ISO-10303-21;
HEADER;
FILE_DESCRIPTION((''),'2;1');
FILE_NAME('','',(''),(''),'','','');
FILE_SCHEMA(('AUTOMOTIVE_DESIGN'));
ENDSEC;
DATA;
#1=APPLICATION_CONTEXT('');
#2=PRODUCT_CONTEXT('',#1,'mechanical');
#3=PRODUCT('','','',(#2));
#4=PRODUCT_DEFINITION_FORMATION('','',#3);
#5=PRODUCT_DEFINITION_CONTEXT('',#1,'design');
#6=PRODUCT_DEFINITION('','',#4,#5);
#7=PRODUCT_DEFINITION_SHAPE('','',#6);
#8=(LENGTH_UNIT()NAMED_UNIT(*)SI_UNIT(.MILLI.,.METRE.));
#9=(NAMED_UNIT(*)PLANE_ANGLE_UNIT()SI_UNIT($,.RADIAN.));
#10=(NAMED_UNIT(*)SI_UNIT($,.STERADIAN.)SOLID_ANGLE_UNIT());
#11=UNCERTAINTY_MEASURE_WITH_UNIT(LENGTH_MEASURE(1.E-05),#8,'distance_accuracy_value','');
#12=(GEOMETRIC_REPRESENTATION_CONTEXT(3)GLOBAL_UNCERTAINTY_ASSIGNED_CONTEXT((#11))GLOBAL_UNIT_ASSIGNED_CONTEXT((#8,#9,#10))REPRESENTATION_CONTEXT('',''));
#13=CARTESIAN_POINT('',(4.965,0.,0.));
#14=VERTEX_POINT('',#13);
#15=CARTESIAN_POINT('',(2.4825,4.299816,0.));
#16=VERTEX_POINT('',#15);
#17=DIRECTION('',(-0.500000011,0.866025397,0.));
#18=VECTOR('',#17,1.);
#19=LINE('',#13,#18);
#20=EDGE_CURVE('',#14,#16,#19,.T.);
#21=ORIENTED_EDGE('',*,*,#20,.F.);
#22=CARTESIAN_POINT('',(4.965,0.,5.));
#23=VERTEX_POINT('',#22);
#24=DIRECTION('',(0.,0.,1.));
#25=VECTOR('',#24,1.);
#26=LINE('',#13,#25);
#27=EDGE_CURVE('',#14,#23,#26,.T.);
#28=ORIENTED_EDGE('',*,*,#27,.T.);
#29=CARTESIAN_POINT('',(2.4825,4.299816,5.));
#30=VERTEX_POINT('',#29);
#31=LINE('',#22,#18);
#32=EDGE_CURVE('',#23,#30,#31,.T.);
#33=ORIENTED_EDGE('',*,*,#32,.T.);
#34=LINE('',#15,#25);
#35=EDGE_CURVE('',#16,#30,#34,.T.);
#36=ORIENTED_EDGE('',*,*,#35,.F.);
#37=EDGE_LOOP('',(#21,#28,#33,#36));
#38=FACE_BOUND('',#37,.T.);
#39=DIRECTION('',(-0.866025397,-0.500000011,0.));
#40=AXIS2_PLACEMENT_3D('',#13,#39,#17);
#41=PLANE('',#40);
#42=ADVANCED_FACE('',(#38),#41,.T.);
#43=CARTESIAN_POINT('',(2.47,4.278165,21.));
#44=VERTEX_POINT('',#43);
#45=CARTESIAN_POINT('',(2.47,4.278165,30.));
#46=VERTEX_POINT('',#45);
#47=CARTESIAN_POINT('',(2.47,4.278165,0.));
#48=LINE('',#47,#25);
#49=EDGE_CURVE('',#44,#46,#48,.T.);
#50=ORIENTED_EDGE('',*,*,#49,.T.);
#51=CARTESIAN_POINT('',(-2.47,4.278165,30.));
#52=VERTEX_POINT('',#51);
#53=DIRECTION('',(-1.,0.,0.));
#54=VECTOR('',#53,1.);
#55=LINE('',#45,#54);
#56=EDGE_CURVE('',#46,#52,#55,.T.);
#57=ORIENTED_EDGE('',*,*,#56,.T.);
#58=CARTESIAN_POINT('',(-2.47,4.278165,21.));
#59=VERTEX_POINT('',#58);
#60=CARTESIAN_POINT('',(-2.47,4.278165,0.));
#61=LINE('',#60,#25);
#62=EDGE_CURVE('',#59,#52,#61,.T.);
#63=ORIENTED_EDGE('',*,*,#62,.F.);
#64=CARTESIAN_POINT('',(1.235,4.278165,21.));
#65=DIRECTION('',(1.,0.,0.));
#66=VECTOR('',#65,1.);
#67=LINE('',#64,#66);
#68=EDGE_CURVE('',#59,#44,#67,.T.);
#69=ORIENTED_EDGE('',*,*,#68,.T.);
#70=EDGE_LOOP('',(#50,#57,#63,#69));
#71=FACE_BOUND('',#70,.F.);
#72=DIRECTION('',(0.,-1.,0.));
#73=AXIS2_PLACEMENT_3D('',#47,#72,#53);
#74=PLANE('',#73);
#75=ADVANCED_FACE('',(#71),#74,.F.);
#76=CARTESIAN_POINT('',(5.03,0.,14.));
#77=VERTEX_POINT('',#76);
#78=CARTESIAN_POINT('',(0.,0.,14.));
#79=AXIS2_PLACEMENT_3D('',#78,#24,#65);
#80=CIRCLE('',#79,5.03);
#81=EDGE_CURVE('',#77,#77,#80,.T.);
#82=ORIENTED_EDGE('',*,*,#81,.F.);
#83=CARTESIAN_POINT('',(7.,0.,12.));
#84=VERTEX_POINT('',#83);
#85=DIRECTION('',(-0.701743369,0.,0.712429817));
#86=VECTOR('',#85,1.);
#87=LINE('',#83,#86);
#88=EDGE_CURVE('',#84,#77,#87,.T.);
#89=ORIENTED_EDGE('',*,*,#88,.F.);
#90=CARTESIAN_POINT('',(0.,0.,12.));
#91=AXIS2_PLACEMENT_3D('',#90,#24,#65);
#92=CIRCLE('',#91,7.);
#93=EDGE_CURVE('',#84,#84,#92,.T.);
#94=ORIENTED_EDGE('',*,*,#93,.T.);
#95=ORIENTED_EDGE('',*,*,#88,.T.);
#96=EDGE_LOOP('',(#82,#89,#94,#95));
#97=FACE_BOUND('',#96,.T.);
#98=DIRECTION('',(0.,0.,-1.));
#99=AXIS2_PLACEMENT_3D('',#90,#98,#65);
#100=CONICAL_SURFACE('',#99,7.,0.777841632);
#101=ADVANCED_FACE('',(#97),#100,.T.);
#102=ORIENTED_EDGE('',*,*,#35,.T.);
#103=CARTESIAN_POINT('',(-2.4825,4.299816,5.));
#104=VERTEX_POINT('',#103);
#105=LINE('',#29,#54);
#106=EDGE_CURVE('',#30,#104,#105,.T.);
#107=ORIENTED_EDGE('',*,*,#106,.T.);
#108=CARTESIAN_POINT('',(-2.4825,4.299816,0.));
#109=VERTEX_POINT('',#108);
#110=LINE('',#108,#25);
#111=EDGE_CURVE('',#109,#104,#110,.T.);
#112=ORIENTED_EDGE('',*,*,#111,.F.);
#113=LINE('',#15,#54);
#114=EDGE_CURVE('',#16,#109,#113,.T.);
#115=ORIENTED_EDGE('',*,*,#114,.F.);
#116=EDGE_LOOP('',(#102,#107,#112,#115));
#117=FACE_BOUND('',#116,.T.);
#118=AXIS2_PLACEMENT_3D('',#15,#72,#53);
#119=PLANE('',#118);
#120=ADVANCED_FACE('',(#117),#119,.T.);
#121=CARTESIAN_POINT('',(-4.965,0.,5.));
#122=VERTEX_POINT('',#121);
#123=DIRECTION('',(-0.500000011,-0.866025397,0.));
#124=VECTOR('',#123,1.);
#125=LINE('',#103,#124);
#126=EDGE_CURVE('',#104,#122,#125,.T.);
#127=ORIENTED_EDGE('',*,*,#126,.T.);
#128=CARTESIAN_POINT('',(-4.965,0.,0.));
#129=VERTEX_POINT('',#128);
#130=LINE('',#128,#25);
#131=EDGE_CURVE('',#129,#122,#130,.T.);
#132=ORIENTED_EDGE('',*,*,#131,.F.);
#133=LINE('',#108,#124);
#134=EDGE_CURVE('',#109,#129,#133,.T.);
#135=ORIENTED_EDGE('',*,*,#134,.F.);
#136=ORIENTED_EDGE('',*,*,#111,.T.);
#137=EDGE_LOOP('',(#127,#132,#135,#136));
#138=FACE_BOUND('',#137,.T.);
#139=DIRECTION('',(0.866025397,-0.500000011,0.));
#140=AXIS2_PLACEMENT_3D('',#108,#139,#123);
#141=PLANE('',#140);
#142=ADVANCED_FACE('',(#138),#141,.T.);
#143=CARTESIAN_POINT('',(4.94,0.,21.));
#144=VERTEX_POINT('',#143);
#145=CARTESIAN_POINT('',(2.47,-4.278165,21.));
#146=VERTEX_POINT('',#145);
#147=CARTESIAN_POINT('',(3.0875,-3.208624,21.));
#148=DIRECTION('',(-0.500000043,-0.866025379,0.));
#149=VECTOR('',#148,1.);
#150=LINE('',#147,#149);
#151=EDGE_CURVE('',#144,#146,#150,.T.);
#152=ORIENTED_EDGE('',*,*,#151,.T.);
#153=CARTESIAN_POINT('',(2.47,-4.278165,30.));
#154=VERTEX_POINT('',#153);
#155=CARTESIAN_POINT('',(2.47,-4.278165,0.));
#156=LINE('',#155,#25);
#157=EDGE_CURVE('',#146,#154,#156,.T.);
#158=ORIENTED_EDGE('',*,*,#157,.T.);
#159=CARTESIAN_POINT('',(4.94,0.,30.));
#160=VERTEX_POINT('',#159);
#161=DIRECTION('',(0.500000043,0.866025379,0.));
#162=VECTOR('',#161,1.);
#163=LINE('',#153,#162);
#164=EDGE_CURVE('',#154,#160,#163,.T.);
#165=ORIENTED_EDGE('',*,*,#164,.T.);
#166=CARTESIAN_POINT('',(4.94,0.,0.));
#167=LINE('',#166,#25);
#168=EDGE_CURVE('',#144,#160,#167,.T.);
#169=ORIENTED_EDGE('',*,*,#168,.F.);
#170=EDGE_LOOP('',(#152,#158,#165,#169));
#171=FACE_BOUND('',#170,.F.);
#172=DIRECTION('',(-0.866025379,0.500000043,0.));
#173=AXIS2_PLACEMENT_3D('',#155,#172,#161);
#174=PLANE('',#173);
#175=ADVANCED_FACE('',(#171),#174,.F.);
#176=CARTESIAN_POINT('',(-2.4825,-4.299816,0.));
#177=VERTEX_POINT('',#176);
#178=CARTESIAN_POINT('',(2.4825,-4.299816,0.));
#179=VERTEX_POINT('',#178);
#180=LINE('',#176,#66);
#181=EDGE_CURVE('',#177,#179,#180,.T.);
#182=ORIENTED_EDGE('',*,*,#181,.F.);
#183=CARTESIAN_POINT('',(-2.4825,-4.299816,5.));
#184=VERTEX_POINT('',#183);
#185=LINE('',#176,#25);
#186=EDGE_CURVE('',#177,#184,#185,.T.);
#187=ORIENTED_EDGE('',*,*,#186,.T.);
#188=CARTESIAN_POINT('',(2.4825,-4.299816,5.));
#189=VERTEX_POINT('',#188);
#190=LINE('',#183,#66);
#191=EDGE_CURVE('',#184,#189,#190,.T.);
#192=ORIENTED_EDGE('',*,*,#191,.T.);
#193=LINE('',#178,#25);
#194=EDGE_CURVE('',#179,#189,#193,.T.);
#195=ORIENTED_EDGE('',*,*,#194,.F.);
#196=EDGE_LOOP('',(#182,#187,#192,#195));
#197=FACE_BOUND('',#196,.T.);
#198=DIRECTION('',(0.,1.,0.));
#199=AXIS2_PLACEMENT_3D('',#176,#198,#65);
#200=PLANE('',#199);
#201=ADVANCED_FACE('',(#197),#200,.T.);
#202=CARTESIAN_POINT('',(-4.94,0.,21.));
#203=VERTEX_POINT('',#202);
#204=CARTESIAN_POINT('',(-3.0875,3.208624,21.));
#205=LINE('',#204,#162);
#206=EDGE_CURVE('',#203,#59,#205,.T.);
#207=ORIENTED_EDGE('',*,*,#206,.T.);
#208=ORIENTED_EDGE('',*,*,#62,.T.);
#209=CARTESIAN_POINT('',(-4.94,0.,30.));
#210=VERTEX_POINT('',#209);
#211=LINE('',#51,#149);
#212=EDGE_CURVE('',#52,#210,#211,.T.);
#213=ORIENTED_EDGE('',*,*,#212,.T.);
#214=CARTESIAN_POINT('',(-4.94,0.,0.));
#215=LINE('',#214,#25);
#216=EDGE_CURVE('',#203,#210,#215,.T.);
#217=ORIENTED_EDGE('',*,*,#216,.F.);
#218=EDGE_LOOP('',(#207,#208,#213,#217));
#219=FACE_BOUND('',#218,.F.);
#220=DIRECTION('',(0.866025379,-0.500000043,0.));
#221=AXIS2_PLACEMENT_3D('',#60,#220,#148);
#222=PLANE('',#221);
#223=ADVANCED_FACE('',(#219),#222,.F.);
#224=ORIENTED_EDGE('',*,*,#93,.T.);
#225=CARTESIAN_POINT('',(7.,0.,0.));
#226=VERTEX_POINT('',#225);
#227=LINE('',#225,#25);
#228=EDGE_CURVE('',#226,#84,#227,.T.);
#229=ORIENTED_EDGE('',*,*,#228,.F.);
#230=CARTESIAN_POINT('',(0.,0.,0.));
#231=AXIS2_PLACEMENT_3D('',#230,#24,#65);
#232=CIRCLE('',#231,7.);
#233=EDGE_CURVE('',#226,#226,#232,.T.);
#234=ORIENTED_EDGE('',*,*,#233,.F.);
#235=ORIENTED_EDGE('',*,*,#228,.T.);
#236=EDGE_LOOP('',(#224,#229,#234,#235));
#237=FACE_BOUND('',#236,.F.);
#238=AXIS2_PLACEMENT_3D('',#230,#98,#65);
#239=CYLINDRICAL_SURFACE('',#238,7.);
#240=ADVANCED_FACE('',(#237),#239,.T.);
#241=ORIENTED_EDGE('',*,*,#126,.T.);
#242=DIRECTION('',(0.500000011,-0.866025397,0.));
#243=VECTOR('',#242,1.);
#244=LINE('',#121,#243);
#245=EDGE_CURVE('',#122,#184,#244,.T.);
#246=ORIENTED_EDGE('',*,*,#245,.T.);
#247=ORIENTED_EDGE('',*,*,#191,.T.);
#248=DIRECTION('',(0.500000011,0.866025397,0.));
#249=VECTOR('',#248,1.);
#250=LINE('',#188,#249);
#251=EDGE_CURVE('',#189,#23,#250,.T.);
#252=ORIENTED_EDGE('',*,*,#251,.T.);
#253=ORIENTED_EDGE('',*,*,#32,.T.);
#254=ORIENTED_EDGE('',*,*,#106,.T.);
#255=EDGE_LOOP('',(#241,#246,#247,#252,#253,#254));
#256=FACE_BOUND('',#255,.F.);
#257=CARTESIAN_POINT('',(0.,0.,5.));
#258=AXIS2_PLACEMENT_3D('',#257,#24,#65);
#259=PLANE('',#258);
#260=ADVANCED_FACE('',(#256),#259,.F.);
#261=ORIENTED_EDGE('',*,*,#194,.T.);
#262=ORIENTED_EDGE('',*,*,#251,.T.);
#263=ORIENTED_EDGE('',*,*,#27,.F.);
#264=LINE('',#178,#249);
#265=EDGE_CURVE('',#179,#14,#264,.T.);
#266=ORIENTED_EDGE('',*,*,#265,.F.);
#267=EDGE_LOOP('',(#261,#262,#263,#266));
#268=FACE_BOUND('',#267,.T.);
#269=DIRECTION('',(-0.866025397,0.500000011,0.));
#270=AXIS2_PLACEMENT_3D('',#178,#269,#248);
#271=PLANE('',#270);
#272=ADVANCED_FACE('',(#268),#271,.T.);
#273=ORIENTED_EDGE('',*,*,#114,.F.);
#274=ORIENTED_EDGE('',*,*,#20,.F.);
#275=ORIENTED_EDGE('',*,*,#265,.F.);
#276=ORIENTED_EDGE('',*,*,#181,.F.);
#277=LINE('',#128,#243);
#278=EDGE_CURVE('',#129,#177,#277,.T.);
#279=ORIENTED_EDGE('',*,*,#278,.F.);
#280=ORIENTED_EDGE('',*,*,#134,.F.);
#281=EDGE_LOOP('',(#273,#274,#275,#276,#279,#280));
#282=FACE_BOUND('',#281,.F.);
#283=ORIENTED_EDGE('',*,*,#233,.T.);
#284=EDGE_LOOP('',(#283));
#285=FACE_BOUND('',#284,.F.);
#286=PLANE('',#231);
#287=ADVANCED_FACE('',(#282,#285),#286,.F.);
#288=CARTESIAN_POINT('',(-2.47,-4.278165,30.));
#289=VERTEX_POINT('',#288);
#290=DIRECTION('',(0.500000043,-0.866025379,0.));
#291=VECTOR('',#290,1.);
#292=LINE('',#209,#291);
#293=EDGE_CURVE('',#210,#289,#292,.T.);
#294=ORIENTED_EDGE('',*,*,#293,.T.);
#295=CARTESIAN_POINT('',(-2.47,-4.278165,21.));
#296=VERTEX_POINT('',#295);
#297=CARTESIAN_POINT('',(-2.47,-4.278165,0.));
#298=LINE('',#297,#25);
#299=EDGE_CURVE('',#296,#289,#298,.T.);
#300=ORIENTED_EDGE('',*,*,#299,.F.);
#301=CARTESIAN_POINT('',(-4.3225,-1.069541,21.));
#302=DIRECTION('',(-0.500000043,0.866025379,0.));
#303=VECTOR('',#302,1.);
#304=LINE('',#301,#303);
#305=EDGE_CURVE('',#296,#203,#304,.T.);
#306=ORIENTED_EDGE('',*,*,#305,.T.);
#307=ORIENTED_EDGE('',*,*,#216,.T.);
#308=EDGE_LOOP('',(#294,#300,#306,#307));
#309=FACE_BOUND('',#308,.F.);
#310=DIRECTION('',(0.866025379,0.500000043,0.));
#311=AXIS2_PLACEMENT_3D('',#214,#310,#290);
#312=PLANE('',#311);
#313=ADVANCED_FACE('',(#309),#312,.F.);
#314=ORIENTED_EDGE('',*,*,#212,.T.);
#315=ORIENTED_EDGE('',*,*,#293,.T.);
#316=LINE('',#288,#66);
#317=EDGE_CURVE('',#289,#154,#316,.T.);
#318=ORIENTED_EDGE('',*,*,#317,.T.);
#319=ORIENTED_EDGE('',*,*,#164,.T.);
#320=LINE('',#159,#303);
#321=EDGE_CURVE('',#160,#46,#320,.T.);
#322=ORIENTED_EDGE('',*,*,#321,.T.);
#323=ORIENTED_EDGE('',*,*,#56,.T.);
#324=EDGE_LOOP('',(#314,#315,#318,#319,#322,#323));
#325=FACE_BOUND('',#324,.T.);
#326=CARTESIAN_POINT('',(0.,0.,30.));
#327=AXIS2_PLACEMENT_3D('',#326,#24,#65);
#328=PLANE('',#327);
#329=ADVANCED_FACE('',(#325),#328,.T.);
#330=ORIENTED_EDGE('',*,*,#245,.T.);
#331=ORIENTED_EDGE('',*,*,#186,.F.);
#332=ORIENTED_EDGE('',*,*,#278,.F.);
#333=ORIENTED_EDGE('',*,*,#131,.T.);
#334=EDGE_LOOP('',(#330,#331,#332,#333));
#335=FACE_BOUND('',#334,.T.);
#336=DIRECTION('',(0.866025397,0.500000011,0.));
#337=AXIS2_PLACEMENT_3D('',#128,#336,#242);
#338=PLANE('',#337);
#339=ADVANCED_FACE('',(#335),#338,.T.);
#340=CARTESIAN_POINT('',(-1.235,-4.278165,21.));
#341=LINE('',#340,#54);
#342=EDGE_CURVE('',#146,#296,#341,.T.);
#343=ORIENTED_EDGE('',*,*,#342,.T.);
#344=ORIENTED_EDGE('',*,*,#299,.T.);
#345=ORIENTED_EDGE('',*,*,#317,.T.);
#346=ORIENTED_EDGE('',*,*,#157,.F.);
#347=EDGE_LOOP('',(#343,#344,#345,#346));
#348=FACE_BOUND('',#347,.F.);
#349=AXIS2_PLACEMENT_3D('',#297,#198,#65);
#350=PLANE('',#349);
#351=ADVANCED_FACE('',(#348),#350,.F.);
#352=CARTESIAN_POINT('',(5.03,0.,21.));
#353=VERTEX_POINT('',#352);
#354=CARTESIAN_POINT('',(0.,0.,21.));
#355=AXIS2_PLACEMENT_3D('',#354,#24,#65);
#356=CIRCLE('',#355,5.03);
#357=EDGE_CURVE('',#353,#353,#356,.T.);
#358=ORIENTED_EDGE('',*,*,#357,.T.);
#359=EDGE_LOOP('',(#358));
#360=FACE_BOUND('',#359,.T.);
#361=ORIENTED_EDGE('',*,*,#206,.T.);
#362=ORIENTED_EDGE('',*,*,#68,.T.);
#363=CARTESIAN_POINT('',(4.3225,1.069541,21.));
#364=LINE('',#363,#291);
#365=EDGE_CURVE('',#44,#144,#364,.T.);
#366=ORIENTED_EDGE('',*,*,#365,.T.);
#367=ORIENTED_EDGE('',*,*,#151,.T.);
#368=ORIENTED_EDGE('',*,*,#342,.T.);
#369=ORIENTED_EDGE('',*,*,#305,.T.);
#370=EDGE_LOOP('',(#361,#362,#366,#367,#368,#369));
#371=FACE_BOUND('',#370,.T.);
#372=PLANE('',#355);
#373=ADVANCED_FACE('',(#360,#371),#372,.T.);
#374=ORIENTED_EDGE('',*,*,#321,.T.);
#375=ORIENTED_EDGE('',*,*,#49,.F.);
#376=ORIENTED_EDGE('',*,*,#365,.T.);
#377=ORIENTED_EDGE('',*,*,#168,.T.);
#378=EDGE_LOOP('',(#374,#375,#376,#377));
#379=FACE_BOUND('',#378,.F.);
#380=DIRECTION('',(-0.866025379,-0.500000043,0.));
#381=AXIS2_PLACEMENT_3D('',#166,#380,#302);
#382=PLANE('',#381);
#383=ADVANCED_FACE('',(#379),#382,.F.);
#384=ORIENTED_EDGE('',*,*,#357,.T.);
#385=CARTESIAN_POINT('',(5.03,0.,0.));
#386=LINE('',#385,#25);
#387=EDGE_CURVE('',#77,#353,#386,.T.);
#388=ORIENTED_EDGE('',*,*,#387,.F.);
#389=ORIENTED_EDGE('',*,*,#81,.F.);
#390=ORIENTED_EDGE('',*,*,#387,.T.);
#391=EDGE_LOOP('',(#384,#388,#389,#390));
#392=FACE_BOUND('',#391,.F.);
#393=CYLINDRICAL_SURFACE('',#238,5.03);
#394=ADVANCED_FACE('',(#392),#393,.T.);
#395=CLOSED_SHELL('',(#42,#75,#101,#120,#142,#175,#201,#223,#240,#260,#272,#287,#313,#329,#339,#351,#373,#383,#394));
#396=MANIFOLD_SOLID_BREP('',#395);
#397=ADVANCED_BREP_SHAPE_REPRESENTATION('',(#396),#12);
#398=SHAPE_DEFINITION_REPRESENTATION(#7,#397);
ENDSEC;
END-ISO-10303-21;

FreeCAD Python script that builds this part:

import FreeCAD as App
import Part
import Sketcher
from FreeCAD import Vector
Q = App.Units.Quantity


def add_polygon(sketch, points):
    """Adds a closed chain of lines whose ends are joined by coincident constraints."""
    first, n = sketch.GeometryCount, len(points)
    for a, b in zip(points, points[1:] + points[:1]):
        sketch.addGeometry(Part.LineSegment(App.Vector(*a, 0), App.Vector(*b, 0)), False)
    for i in range(n):
        sketch.addConstraint(Sketcher.Constraint("Coincident", first + i, 2, first + (i + 1) % n, 1))

doc = App.newDocument("Part")
body = doc.addObject("PartDesign::Body", "Body")

sketch1 = doc.addObject("Sketcher::SketchObject", "Sketch")
body.addObject(sketch1)
sketch1.AttachmentSupport = (doc.XY_Plane, [""])
sketch1.MapMode = "FlatFace"
sketch1.addGeometry(Part.Circle(Vector(0, 0, 0), Vector(0, 0, 1), 7), False)
sketch1.addConstraint([
    Sketcher.Constraint("Coincident", 0, 3, -1, 1),
    Sketcher.Constraint("Diameter", 0, Q("14 mm")),
])
pad1 = doc.addObject("PartDesign::Pad", "Pad")
body.addObject(pad1)
pad1.Profile = sketch1
pad1.Length = 12

sketch2 = doc.addObject("Sketcher::SketchObject", "Sketch001")
body.addObject(sketch2)
sketch2.AttachmentSupport = (doc.XY_Plane, [""])
sketch2.MapMode = "FlatFace"
sketch2.addGeometry(Part.Circle(Vector(0, 0, 0), Vector(0, 0, 1), 5), False)
sketch2.addConstraint([
    Sketcher.Constraint("Coincident", 0, 3, -1, 1),
    Sketcher.Constraint("Diameter", 0, Q("10.06 mm")),
])
pad2 = doc.addObject("PartDesign::Pad", "Pad001")
body.addObject(pad2)
pad2.Profile = sketch2
pad2.Length = 21

sketch3 = doc.addObject("Sketcher::SketchObject", "Sketch002")
body.addObject(sketch3)
sketch3.AttachmentSupport = (doc.XY_Plane, [""])
sketch3.MapMode = "FlatFace"
add_polygon(sketch3, [(4.9, 0), (2.5, 4.3), (-2.5, 4.3), (-4.9, 0), (-2.5, -4.3), (2.5, -4.3)])
sketch3.addConstraint([
    Sketcher.Constraint("Horizontal", 1),
    Sketcher.Constraint("Horizontal", 4),
    Sketcher.Constraint("Symmetric", 0, 2, 3, 2, -1, 1),
    Sketcher.Constraint("Symmetric", 2, 2, 5, 2, -1, 1),
    Sketcher.Constraint("PointOnObject", 2, 2, -1),
    Sketcher.Constraint("Parallel", 2, 5),
    Sketcher.Constraint("Vertical", 1, 2, 3, 2),
    Sketcher.Constraint("Angle", 0, Q("120.000003 deg")),
    Sketcher.Constraint("DistanceX", 1, 2, 1, 1, Q("4.94 mm")),
    Sketcher.Constraint("Distance", 0, Q("4.94 mm")),
])
pad3 = doc.addObject("PartDesign::Pad", "Pad002")
body.addObject(pad3)
pad3.Profile = sketch3
pad3.Length = 30

sketch4 = doc.addObject("Sketcher::SketchObject", "Sketch003")
body.addObject(sketch4)
sketch4.AttachmentSupport = (doc.XY_Plane, [""])
sketch4.MapMode = "FlatFace"
add_polygon(sketch4, [(5, 0), (2.5, 4.3), (-2.5, 4.3), (-5, 0), (-2.5, -4.3), (2.5, -4.3)])
sketch4.addConstraint([
    Sketcher.Constraint("Horizontal", 1),
    Sketcher.Constraint("Horizontal", 4),
    Sketcher.Constraint("Symmetric", 0, 2, 3, 2, -1, 1),
    Sketcher.Constraint("Symmetric", 2, 2, 5, 2, -1, 1),
    Sketcher.Constraint("PointOnObject", 2, 2, -1),
    Sketcher.Constraint("Parallel", 2, 5),
    Sketcher.Constraint("Vertical", 1, 2, 3, 2),
    Sketcher.Constraint("Angle", 0, Q("120.000001 deg")),
    Sketcher.Constraint("DistanceX", 1, 2, 1, 1, Q("4.965 mm")),
    Sketcher.Constraint("DistanceX", 2, 2, 5, 2, Q("9.93 mm")),
])
pocket1 = doc.addObject("PartDesign::Pocket", "Pocket")
body.addObject(pocket1)
pocket1.Profile = sketch4
pocket1.Length = 5
pocket1.Reversed = True

sketch5 = doc.addObject("Sketcher::SketchObject", "Sketch004")
body.addObject(sketch5)
sketch5.AttachmentSupport = (doc.XZ_Plane, [""])
sketch5.MapMode = "FlatFace"
add_polygon(sketch5, [(5, 12), (7, 12), (5, 14)])
sketch5.addConstraint([
    Sketcher.Constraint("Horizontal", 0),
    Sketcher.Constraint("Vertical", 2),
    Sketcher.Constraint("DistanceY", 2, 2, 2, 1, Q("2 mm")),
    Sketcher.Constraint("DistanceX", -1, 1, 0, 2, Q("7 mm")),
    Sketcher.Constraint("DistanceY", -1, 1, 0, 2, Q("12 mm")),
    Sketcher.Constraint("DistanceX", 0, 1, 0, 2, Q("1.97 mm")),
])
revolution = doc.addObject("PartDesign::Revolution", "Revolution")
body.addObject(revolution)
revolution.Profile = sketch5
revolution.ReferenceAxis = (sketch5, ["V_Axis"])
revolution.Angle = 360

doc.recompute()
